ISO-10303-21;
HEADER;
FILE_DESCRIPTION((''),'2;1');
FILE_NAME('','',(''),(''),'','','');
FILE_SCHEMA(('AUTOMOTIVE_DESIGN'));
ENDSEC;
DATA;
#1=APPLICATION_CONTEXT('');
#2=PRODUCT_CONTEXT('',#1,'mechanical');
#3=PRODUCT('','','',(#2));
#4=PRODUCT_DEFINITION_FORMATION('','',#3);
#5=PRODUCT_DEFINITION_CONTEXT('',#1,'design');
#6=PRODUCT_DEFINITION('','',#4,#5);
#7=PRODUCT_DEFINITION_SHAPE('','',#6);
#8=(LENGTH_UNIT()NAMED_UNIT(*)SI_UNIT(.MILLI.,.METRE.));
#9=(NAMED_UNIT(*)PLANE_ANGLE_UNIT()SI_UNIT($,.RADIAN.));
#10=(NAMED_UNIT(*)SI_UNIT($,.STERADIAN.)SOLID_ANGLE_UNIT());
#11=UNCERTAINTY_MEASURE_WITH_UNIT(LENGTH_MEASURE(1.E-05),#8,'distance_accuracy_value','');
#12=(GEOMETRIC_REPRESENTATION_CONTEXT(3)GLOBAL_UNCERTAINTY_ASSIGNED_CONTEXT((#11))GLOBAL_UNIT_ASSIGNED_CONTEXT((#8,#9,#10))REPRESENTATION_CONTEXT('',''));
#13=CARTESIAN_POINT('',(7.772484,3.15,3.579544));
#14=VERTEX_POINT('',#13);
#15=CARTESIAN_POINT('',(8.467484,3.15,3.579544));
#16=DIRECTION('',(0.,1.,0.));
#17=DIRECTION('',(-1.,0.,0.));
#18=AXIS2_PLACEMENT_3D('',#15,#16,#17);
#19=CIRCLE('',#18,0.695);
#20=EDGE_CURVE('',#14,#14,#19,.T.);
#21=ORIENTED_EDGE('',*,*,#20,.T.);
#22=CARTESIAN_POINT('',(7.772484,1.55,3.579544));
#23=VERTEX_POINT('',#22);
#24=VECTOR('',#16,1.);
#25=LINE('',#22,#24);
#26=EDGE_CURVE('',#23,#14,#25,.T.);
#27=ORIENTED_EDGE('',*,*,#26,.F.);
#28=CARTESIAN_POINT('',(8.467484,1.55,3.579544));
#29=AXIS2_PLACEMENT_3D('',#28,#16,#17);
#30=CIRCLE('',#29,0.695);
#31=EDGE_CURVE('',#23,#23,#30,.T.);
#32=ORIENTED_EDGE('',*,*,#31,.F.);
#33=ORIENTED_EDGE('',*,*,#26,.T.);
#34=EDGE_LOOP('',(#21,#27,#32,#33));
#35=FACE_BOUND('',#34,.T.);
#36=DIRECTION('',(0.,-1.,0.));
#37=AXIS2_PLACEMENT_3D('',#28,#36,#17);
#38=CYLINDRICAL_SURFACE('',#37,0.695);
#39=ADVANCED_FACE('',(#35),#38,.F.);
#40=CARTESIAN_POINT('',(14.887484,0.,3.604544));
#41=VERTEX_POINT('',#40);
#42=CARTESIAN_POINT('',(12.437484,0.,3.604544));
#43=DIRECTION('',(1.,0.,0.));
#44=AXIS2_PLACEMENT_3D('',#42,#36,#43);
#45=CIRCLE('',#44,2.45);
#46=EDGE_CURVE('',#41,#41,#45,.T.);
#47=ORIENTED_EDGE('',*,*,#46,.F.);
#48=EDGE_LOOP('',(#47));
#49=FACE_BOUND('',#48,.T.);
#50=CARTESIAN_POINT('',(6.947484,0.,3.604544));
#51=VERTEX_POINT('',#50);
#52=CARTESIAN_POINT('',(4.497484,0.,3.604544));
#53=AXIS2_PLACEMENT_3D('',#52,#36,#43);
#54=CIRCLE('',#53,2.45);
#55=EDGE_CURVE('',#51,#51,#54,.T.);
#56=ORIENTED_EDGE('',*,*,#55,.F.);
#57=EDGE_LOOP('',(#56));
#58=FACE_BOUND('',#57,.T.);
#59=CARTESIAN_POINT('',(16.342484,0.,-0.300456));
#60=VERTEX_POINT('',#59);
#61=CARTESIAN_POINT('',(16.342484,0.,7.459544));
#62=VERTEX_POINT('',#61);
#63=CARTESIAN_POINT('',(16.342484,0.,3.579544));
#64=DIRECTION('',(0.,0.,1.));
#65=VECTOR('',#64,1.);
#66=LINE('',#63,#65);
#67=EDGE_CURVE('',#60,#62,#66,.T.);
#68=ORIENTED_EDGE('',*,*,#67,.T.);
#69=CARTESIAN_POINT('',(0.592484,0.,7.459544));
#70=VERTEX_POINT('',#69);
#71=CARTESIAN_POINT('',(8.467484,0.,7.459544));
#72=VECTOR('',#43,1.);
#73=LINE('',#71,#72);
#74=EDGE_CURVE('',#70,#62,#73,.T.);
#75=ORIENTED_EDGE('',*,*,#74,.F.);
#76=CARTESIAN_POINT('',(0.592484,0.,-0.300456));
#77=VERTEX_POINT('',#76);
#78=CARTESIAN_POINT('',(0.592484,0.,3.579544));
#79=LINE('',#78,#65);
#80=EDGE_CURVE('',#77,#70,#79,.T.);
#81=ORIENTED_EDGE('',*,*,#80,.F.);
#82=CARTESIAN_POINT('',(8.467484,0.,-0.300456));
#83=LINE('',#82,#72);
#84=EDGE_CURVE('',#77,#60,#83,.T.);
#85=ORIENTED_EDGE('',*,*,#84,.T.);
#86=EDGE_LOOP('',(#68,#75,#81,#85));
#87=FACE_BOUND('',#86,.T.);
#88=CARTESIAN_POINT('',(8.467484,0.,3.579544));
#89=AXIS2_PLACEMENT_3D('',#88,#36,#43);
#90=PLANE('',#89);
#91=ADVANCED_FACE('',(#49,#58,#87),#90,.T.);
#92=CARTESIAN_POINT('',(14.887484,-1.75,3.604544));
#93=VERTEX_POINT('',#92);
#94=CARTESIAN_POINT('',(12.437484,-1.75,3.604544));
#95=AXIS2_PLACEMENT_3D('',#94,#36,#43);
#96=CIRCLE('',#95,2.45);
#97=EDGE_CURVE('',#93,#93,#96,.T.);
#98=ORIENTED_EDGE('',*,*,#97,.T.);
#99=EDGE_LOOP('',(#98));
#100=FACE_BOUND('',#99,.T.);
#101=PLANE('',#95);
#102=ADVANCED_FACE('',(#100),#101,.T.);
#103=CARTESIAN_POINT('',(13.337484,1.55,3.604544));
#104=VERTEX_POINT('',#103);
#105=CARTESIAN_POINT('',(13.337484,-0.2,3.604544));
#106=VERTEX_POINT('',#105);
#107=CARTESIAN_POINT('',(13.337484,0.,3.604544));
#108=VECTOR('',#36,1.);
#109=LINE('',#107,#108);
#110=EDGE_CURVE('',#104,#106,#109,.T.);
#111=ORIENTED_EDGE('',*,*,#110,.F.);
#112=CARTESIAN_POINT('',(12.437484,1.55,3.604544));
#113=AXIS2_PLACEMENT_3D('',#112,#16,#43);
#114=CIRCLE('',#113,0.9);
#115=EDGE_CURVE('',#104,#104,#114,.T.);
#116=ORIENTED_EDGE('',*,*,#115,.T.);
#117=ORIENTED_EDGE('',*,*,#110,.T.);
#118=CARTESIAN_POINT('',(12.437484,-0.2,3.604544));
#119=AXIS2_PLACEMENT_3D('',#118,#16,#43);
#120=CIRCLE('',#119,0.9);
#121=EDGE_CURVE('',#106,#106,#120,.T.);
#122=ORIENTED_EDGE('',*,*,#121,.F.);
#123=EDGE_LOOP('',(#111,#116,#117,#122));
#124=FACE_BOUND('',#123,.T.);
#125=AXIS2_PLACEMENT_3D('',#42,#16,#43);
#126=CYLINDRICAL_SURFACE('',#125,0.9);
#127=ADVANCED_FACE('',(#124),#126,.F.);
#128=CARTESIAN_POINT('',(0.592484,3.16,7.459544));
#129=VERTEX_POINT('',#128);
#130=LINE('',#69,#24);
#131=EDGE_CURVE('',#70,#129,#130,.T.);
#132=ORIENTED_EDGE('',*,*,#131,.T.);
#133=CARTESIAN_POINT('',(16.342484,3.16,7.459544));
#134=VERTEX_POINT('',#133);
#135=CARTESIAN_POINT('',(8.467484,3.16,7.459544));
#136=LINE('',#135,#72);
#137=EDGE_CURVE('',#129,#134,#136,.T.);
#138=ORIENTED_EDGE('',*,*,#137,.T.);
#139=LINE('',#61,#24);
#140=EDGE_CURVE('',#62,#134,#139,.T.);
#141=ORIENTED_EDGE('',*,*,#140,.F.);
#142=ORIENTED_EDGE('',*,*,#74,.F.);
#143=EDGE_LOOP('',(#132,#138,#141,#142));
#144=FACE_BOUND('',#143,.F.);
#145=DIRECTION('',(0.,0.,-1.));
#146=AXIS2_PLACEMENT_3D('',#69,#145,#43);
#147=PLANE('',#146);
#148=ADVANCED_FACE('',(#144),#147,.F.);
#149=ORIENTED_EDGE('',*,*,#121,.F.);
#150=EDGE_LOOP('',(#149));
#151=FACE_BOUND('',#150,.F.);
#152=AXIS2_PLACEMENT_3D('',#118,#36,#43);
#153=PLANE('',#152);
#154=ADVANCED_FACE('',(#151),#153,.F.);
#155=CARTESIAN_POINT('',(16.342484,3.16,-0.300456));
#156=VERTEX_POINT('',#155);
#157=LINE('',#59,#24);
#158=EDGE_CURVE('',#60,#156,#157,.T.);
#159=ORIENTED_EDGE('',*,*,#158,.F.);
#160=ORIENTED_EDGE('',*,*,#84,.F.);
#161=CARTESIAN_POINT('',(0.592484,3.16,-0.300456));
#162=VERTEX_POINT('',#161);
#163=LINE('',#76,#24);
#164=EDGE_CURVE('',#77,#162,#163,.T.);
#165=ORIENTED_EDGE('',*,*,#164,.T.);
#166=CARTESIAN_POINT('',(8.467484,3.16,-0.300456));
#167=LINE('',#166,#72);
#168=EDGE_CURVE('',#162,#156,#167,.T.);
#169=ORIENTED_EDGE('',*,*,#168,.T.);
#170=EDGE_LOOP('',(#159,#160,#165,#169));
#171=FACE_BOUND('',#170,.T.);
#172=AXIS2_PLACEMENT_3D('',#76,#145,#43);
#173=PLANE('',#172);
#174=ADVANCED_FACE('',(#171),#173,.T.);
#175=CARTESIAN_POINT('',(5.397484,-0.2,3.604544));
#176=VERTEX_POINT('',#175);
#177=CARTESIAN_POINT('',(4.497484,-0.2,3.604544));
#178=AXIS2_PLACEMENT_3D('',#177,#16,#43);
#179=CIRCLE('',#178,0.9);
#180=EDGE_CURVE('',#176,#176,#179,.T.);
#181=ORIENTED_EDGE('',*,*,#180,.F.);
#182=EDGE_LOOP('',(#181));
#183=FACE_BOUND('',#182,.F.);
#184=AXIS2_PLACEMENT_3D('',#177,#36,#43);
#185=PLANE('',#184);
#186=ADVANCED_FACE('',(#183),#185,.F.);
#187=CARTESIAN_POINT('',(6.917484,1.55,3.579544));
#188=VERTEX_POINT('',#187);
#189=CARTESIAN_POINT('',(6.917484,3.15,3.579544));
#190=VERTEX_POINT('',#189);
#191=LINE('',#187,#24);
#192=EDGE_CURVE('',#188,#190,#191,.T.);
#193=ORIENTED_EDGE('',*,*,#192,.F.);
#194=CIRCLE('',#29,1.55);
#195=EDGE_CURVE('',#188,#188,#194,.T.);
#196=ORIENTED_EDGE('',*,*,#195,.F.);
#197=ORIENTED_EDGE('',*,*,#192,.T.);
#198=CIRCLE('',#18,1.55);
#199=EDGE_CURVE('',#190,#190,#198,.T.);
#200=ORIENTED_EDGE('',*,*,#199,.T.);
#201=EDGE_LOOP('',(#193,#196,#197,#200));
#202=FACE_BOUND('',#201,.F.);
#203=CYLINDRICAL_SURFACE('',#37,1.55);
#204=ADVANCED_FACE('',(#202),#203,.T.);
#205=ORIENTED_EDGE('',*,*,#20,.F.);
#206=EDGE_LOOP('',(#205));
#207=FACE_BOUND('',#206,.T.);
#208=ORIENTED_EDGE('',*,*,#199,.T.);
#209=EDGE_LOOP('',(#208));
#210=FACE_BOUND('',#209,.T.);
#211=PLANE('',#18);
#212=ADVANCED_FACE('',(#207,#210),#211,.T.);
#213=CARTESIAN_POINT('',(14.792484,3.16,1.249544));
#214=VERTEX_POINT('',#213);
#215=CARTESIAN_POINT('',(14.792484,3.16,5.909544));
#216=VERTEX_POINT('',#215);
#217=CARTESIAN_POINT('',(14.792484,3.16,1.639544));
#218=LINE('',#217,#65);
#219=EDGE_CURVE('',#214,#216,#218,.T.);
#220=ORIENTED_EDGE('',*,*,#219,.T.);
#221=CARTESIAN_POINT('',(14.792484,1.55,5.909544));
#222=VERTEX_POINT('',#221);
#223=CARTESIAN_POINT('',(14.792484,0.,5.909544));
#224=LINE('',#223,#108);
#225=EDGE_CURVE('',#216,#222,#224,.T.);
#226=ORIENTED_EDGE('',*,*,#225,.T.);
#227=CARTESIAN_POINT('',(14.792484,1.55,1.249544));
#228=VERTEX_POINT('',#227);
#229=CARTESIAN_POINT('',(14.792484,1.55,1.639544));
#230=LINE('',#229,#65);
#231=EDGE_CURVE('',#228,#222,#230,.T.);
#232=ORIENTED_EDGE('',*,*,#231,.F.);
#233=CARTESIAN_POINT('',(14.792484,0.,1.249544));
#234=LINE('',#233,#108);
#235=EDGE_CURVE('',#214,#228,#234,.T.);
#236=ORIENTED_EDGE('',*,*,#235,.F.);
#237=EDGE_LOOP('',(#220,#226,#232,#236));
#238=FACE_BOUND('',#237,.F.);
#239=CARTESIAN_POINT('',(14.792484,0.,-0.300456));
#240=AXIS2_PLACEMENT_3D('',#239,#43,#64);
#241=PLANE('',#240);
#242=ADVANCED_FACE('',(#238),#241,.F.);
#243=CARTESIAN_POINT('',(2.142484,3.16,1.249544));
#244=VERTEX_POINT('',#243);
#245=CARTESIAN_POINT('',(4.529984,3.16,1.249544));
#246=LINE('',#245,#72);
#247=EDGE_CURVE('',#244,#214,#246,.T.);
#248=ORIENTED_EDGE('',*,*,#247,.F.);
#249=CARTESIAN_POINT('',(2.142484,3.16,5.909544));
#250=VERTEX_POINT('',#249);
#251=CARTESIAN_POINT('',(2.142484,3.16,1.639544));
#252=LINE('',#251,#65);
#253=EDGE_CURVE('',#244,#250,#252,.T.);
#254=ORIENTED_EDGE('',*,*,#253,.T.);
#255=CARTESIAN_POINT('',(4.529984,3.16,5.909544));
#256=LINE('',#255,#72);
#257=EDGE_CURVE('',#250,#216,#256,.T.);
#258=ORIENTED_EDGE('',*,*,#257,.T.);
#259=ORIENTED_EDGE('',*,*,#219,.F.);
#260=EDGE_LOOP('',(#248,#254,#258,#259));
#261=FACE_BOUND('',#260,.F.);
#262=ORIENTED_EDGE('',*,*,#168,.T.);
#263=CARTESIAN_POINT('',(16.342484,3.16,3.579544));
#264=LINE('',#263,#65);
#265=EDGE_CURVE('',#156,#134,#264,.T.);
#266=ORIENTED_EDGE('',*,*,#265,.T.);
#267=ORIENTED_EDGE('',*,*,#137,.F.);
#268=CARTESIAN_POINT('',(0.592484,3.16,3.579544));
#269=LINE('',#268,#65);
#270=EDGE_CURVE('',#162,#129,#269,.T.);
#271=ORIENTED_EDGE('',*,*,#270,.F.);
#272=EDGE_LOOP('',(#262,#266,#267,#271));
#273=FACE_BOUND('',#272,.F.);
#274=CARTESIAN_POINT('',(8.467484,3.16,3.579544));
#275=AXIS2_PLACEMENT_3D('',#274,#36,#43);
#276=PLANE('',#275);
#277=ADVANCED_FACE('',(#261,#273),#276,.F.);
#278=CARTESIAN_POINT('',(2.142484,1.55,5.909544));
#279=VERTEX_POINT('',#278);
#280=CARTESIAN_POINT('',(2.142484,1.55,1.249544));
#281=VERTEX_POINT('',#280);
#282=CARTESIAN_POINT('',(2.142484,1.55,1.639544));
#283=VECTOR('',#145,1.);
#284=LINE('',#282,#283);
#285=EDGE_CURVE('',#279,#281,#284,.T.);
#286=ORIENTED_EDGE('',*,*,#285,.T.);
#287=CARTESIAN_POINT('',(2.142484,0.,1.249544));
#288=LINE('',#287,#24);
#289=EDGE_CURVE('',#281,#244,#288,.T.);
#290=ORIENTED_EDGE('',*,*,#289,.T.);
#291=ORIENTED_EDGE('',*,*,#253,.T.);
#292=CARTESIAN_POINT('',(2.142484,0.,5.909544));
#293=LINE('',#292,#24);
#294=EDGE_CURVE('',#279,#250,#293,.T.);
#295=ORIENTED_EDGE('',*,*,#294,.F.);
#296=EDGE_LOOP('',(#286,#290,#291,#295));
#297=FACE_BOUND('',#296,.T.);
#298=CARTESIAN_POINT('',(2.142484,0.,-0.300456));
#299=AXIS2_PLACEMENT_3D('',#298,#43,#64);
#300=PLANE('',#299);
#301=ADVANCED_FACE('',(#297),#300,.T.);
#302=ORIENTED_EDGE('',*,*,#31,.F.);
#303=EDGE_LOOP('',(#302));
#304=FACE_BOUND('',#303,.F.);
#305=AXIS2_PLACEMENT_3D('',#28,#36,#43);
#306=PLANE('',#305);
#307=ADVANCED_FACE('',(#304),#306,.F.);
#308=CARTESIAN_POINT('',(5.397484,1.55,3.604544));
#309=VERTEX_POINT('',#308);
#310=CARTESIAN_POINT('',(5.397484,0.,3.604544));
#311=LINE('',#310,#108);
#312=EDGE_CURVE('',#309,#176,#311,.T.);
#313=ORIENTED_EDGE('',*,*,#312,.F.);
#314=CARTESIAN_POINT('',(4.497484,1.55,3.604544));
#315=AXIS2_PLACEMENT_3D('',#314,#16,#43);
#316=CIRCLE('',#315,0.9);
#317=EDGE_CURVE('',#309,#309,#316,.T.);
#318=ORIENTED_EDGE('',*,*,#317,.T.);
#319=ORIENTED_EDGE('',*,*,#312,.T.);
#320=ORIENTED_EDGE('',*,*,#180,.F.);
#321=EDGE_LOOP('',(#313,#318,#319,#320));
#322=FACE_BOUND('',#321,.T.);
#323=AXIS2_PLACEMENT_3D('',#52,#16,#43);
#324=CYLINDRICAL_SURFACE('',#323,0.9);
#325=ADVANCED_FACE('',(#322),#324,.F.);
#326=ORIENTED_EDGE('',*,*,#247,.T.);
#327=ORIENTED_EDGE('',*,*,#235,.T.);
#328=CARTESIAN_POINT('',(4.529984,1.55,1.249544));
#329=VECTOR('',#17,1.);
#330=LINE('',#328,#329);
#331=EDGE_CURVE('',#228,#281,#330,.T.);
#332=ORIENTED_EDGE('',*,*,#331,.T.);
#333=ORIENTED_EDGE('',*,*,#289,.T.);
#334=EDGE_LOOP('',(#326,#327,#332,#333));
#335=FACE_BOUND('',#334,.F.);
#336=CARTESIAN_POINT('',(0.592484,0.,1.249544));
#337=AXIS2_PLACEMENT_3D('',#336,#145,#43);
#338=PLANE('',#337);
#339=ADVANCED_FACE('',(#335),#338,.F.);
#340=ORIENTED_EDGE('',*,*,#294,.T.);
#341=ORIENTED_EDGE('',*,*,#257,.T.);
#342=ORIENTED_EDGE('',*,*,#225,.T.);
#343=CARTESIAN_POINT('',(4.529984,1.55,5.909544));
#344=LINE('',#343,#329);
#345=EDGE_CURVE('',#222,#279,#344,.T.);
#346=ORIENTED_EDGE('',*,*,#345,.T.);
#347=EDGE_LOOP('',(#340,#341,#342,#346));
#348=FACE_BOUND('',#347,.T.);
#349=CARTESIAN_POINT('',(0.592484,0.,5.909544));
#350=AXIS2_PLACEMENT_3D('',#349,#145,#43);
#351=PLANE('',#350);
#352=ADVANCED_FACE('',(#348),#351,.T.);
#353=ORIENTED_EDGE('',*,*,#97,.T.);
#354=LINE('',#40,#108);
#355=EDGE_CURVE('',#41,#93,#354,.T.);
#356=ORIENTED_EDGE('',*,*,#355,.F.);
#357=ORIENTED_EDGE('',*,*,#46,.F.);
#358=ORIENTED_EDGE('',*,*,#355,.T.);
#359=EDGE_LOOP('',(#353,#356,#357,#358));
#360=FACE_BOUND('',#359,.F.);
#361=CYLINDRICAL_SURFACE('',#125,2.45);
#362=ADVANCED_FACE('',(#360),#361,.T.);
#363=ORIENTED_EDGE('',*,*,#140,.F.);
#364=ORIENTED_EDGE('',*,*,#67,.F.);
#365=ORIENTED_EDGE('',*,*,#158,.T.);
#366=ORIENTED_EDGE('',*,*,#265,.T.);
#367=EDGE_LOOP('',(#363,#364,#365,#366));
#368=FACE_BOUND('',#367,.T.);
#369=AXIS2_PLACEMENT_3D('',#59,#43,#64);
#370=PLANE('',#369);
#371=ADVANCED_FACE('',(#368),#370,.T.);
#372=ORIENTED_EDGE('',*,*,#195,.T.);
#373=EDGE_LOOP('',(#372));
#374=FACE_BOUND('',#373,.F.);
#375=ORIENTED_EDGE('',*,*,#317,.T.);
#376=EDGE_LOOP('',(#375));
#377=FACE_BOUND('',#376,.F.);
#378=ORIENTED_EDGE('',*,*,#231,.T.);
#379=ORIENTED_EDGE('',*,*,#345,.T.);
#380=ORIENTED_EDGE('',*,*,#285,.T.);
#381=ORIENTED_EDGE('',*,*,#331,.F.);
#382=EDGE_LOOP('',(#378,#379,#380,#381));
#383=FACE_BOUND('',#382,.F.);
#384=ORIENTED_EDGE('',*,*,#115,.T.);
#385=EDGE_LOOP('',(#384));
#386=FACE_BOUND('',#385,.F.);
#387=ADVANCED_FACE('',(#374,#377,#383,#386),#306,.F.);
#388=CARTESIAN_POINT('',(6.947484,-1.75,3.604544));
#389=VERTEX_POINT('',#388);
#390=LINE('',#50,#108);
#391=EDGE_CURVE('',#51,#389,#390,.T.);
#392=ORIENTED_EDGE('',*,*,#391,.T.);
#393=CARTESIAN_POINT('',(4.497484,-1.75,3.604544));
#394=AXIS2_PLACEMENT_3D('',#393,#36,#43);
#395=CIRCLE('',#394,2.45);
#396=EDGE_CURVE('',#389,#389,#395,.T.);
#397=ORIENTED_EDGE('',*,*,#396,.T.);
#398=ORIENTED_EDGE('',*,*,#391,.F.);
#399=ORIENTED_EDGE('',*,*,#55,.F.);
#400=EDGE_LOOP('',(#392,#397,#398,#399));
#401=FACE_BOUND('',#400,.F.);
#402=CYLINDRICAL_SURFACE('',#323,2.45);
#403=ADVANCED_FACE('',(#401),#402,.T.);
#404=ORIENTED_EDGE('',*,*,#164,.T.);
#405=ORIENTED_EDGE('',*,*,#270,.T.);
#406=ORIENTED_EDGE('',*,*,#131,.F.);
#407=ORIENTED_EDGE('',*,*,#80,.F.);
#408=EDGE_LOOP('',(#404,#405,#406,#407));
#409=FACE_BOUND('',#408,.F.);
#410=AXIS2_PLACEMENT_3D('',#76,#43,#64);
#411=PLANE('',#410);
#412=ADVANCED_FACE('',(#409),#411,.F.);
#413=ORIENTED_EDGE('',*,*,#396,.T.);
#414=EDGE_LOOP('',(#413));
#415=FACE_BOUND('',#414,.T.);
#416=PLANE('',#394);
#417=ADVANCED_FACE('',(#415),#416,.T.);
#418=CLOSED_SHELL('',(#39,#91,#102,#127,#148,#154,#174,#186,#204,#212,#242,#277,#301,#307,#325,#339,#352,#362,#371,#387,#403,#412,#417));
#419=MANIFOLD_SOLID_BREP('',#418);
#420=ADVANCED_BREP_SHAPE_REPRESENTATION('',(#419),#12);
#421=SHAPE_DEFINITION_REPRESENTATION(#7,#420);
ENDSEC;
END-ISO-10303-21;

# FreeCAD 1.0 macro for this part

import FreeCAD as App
import Part
import Sketcher
from FreeCAD import Vector
Q = App.Units.Quantity


def faces_at(feature, points):
    """Names of the faces that lie closest to the given points."""
    faces = feature.Shape.Faces
    near = lambda p: min(range(len(faces)), key=lambda i: faces[i].distToShape(Part.Vertex(*p))[0])
    return sorted({f"Face{near(p) + 1}" for p in points})


def add_polygon(sketch, points):
    """Adds a closed chain of lines whose ends are joined by coincident constraints."""
    first, n = sketch.GeometryCount, len(points)
    for a, b in zip(points, points[1:] + points[:1]):
        sketch.addGeometry(Part.LineSegment(App.Vector(*a, 0), App.Vector(*b, 0)), False)
    for i in range(n):
        sketch.addConstraint(Sketcher.Constraint("Coincident", first + i, 2, first + (i + 1) % n, 1))

doc = App.newDocument("Part")
body = doc.addObject("PartDesign::Body", "Body")

# Sketch on XZ plane
sketch1 = doc.addObject("Sketcher::SketchObject", "Sketch")
body.addObject(sketch1)
sketch1.AttachmentSupport = (doc.XZ_Plane, [""])
sketch1.MapMode = "FlatFace"
add_polygon(sketch1, [(0.592484, 7.459544), (0.592484, -0.300456), (16.342484, -0.300456), (16.342484, 7.459544)])  # lines 0-3
sketch1.addConstraint(Sketcher.Constraint("Vertical", 0))
sketch1.addConstraint(Sketcher.Constraint("Horizontal", 1))
sketch1.addConstraint(Sketcher.Constraint("Vertical", 2))
sketch1.addConstraint(Sketcher.Constraint("Horizontal", 3))
sketch1.addConstraint(Sketcher.Constraint("DistanceX", 1, 1, 1, 2, Q("15.75 mm")))
sketch1.addConstraint(Sketcher.Constraint("DistanceY", 0, 2, 0, 1, Q("7.76 mm")))
sketch1.addConstraint(Sketcher.Constraint("DistanceX", -1, 1, 0, 2, Q("0.592484 mm")))
sketch1.addConstraint(Sketcher.Constraint("DistanceY", 0, 2, -1, 1, Q("0.300456 mm")))
pad1 = doc.addObject("PartDesign::Pad", "Pad")
body.addObject(pad1)
pad1.Profile = sketch1
pad1.Length = 3.16
pad1.Reversed = True

# Sketch on XZ plane
sketch2 = doc.addObject("Sketcher::SketchObject", "Sketch001")
body.addObject(sketch2)
sketch2.AttachmentSupport = (doc.XZ_Plane, [""])
sketch2.MapMode = "FlatFace"
sketch2.addGeometry(Part.Circle(Vector(4.497484, 3.604544, 0), Vector(0, 0, 1), 2.45), False)
sketch2.addGeometry(Part.Circle(Vector(12.437484, 3.604544, 0), Vector(0, 0, 1), 2.45), False)
sketch2.addConstraint(Sketcher.Constraint("Equal", 0, 1))
sketch2.addConstraint(Sketcher.Constraint("Horizontal", 0, 3, 1, 3))
sketch2.addConstraint(Sketcher.Constraint("Diameter", 0, Q("4.9 mm")))
sketch2.addConstraint(Sketcher.Constraint("DistanceX", 0, 3, 1, 3, Q("7.94 mm")))
sketch2.addConstraint(Sketcher.Constraint("DistanceX", -1, 1, 0, 3, Q("4.497484 mm")))
sketch2.addConstraint(Sketcher.Constraint("DistanceY", -1, 1, 0, 3, Q("3.604544 mm")))
pad2 = doc.addObject("PartDesign::Pad", "Pad001")
body.addObject(pad2)
pad2.Profile = sketch2
pad2.Length = 1.75
doc.recompute()

thickness = doc.addObject("PartDesign::Thickness", "Thickness")
body.addObject(thickness)
thickness.Base = (pad2, faces_at(pad2, [(8.467, 3.16, 3.58)]))
thickness.Value = 1.55
thickness.Reversed = True
thickness.Join = "Intersection"

# Sketch on XZ plane
sketch3 = doc.addObject("Sketcher::SketchObject", "Sketch002")
body.addObject(sketch3)
sketch3.AttachmentSupport = (doc.XZ_Plane, [""])
sketch3.MapMode = "FlatFace"
sketch3.AttachmentOffset = App.Placement(Vector(0, 0, -1.55), App.Rotation())
sketch3.addGeometry(Part.Circle(Vector(8.467484, 3.579544, 0), Vector(0, 0, 1), 1.55), False)
sketch3.addGeometry(Part.Circle(Vector(8.467484, 3.579544, 0), Vector(0, 0, 1), 0.695), False)
sketch3.addConstraint(Sketcher.Constraint("Coincident", 1, 3, 0, 3))
sketch3.addConstraint(Sketcher.Constraint("Diameter", 0, Q("3.1 mm")))
sketch3.addConstraint(Sketcher.Constraint("Diameter", 1, Q("1.39 mm")))
sketch3.addConstraint(Sketcher.Constraint("DistanceX", -1, 1, 0, 3, Q("8.467484 mm")))
sketch3.addConstraint(Sketcher.Constraint("DistanceY", -1, 1, 0, 3, Q("3.579544 mm")))
pad3 = doc.addObject("PartDesign::Pad", "Pad002")
body.addObject(pad3)
pad3.Profile = sketch3
pad3.Length = 1.6
pad3.Reversed = True

doc.recompute()
